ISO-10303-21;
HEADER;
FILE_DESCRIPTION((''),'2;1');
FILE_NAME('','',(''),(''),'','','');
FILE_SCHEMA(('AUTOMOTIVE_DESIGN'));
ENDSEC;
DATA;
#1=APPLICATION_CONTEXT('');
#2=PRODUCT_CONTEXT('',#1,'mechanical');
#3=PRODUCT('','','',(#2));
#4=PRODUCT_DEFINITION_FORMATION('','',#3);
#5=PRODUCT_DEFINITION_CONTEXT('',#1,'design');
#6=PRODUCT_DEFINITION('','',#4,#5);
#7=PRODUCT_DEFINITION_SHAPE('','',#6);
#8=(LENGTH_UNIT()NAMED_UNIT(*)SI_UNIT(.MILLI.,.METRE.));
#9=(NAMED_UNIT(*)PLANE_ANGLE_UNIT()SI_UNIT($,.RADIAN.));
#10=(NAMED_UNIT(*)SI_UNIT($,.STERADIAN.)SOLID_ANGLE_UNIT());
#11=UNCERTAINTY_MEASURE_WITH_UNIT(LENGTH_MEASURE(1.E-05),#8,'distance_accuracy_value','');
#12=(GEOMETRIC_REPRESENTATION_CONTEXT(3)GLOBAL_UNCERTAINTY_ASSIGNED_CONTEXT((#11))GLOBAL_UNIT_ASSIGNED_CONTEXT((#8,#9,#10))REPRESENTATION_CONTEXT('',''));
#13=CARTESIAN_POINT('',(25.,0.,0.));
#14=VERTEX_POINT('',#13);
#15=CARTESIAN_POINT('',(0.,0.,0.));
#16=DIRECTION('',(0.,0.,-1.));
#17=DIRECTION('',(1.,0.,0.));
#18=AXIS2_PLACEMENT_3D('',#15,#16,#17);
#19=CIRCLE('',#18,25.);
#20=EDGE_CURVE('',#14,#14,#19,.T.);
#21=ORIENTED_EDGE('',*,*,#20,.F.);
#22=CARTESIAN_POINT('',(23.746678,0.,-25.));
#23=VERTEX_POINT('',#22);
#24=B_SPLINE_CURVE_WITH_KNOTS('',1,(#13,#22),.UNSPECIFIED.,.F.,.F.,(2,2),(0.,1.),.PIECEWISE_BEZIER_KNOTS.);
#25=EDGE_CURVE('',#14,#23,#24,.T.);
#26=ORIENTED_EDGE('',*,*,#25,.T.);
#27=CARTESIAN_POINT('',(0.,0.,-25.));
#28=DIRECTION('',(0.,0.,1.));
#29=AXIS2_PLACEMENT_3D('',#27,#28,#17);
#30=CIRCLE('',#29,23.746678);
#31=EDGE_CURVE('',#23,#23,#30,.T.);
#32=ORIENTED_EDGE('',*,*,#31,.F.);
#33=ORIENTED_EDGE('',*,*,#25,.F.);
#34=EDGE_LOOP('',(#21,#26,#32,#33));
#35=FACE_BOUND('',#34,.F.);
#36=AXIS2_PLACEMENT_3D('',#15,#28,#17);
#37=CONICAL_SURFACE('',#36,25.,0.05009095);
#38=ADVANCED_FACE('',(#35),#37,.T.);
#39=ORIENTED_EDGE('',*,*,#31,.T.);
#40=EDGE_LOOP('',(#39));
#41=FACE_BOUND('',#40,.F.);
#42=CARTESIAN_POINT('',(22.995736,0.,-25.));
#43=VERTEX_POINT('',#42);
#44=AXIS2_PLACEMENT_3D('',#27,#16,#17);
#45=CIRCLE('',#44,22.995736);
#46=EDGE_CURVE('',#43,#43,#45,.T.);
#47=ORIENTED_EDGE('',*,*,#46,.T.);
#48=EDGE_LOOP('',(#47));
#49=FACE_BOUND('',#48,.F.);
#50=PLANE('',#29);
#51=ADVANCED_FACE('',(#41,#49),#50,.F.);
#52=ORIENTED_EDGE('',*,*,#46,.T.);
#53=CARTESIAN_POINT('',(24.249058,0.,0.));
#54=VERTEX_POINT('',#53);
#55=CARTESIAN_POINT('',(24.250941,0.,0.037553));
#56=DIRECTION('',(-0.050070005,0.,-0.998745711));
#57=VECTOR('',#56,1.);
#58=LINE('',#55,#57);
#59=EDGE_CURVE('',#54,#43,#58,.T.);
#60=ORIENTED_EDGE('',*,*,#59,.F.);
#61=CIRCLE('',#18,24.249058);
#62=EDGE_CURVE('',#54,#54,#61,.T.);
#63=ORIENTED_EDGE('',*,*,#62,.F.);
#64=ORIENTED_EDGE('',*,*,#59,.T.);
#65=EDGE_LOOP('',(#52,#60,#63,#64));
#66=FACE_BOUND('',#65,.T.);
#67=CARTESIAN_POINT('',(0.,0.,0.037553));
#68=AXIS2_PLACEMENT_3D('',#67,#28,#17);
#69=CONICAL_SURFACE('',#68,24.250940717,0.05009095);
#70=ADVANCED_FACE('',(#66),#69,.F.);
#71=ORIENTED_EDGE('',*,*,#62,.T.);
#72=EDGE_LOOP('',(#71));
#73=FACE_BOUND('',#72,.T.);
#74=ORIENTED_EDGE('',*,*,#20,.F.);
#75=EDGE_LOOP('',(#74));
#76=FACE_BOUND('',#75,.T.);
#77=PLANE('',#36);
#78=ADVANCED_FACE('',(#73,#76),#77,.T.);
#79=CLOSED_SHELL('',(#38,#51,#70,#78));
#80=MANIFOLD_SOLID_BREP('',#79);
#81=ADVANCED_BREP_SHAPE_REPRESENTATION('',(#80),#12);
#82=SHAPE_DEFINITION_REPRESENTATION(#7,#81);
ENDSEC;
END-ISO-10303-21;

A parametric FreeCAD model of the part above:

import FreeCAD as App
import Part
import Sketcher

V = App.Vector


def faces_at(feature, points):
    """Names of the faces that lie closest to the given points."""
    faces = feature.Shape.Faces
    near = lambda p: min(range(len(faces)), key=lambda i: faces[i].distToShape(Part.Vertex(*p))[0])
    return sorted({f"Face{near(p) + 1}" for p in points})

doc = App.newDocument("Part")
body = doc.addObject("PartDesign::Body", "Body")

# Sketch on XY plane
sketch1 = doc.addObject("Sketcher::SketchObject", "Sketch")
body.addObject(sketch1)
sketch1.AttachmentSupport = (doc.XY_Plane, [""])
sketch1.MapMode = "FlatFace"
sketch1.addGeometry(Part.Circle(V(0, 0, 0), V(0, 0, 1), 25), False)
sketch1.addConstraint(Sketcher.Constraint("Coincident", 0, 3, -1, 1))
sketch1.addConstraint(Sketcher.Constraint("Diameter", 0, 50.0))
pad1 = doc.addObject("PartDesign::Pad", "Pad")
body.addObject(pad1)
pad1.Profile = sketch1
pad1.Length = 25
pad1.Reversed = True
pad1.TaperAngle = -2.87
doc.recompute()

thickness = doc.addObject("PartDesign::Thickness", "Thickness")
body.addObject(thickness)
thickness.Base = (pad1, faces_at(pad1, [(0, 0, 0), (0, 0, -25)]))
thickness.Value = 0.75
thickness.Reversed = True
thickness.Join = "Intersection"

doc.recompute()
